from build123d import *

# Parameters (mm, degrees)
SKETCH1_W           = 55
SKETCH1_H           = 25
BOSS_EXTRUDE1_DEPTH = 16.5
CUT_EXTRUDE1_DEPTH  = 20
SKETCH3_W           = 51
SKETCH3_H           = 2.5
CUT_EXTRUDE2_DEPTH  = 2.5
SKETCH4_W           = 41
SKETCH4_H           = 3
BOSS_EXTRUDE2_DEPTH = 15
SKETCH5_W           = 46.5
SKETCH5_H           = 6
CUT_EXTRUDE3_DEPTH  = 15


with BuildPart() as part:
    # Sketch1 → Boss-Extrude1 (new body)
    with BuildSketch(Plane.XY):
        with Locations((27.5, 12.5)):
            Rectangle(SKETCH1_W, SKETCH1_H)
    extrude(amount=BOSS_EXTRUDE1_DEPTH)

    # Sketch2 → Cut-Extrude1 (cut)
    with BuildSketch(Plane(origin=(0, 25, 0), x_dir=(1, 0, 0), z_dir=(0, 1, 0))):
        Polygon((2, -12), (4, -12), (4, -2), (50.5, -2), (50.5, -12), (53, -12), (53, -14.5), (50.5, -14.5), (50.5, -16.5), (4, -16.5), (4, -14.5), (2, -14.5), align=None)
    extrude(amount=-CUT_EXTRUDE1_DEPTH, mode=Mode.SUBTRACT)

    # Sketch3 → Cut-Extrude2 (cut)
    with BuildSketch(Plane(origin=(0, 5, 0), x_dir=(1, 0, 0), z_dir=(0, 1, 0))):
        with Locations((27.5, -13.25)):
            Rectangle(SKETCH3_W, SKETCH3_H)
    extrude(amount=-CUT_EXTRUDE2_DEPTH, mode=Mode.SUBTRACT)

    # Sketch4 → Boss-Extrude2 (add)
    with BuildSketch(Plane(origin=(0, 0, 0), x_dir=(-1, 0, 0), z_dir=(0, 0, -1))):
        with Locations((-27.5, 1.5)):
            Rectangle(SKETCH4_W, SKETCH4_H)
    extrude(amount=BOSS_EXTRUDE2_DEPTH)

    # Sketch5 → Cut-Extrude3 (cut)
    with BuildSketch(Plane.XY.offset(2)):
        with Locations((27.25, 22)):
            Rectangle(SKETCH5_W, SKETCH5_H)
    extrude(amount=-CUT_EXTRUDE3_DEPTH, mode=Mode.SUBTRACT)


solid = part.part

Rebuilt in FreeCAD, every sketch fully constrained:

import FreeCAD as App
import Part
import Sketcher
from FreeCAD import Vector
Q = App.Units.Quantity

doc = App.newDocument("Part")
body = doc.addObject("PartDesign::Body", "Body")

# Sketch on XY plane
sketch1 = body.newObject("Sketcher::SketchObject", "Sketch")
sketch1.AttachmentSupport = (doc.getObject("XY_Plane"), [""])
sketch1.MapMode = "FlatFace"
sketch1.addGeometry([
    Part.LineSegment(Vector(0, 25, 0), Vector(0, 0, 0)),
    Part.LineSegment(Vector(0, 0, 0), Vector(55, 0, 0)),
    Part.LineSegment(Vector(55, 0, 0), Vector(55, 25, 0)),
    Part.LineSegment(Vector(55, 25, 0), Vector(0, 25, 0)),
], False)
sketch1.addConstraint([
    Sketcher.Constraint("Coincident", 0, 2, 1, 1),
    Sketcher.Constraint("Coincident", 1, 2, 2, 1),
    Sketcher.Constraint("Coincident", 2, 2, 3, 1),
    Sketcher.Constraint("Coincident", 3, 2, 0, 1),
    Sketcher.Constraint("Vertical", 0),
    Sketcher.Constraint("Horizontal", 1),
    Sketcher.Constraint("Vertical", 2),
    Sketcher.Constraint("Horizontal", 3),
    Sketcher.Constraint("Coincident", 0, 2, -1, 1),
    Sketcher.Constraint("DistanceX", 1, 1, 1, 2, Q("55 mm")),
    Sketcher.Constraint("DistanceY", 0, 2, 0, 1, Q("25 mm")),
])
pad1 = body.newObject("PartDesign::Pad", "Pad")
pad1.Profile = sketch1
pad1.Length = 16.5

# Sketch on XZ plane
sketch2 = body.newObject("Sketcher::SketchObject", "Sketch001")
sketch2.AttachmentSupport = (doc.getObject("XZ_Plane"), [""])
sketch2.MapMode = "FlatFace"
sketch2.AttachmentOffset = App.Placement(Vector(0, 0, -25), App.Rotation())
sketch2.addGeometry([
    Part.LineSegment(Vector(4, 12, 0), Vector(2, 12, 0)),  # 0
    Part.LineSegment(Vector(2, 12, 0), Vector(2, 14.5, 0)),  # 1
    Part.LineSegment(Vector(2, 14.5, 0), Vector(4, 14.5, 0)),  # 2
    Part.LineSegment(Vector(4, 14.5, 0), Vector(4, 16.5, 0)),  # 3
    Part.LineSegment(Vector(4, 16.5, 0), Vector(50.5, 16.5, 0)),  # 4
    Part.LineSegment(Vector(50.5, 16.5, 0), Vector(50.5, 14.5, 0)),  # 5
    Part.LineSegment(Vector(50.5, 14.5, 0), Vector(53, 14.5, 0)),  # 6
    Part.LineSegment(Vector(53, 14.5, 0), Vector(53, 12, 0)),  # 7
    Part.LineSegment(Vector(53, 12, 0), Vector(50.5, 12, 0)),  # 8
    Part.LineSegment(Vector(50.5, 12, 0), Vector(50.5, 2, 0)),  # 9
    Part.LineSegment(Vector(50.5, 2, 0), Vector(4, 2, 0)),  # 10
    Part.LineSegment(Vector(4, 2, 0), Vector(4, 12, 0)),  # 11
], False)
sketch2.addConstraint([
    Sketcher.Constraint("Coincident", 0, 2, 1, 1),
    Sketcher.Constraint("Coincident", 1, 2, 2, 1),
    Sketcher.Constraint("Coincident", 2, 2, 3, 1),
    Sketcher.Constraint("Coincident", 3, 2, 4, 1),
    Sketcher.Constraint("Coincident", 4, 2, 5, 1),
    Sketcher.Constraint("Coincident", 5, 2, 6, 1),
    Sketcher.Constraint("Coincident", 6, 2, 7, 1),
    Sketcher.Constraint("Coincident", 7, 2, 8, 1),
    Sketcher.Constraint("Coincident", 8, 2, 9, 1),
    Sketcher.Constraint("Coincident", 9, 2, 10, 1),
    Sketcher.Constraint("Coincident", 10, 2, 11, 1),
    Sketcher.Constraint("Coincident", 11, 2, 0, 1),
    Sketcher.Constraint("Horizontal", 0),
    Sketcher.Constraint("Vertical", 1),
    Sketcher.Constraint("Horizontal", 2),
    Sketcher.Constraint("Vertical", 3),
    Sketcher.Constraint("Horizontal", 4),
    Sketcher.Constraint("Vertical", 5),
    Sketcher.Constraint("Horizontal", 6),
    Sketcher.Constraint("Vertical", 7),
    Sketcher.Constraint("Horizontal", 8),
    Sketcher.Constraint("Vertical", 9),
    Sketcher.Constraint("Horizontal", 10),
    Sketcher.Constraint("Vertical", 11),
    Sketcher.Constraint("Horizontal", 2, 2, 5, 2),
    Sketcher.Constraint("Horizontal", 0, 2, 7, 2),
    Sketcher.Constraint("Vertical", 5, 2, 8, 2),
    Sketcher.Constraint("Vertical", 3, 2, 10, 2),
    Sketcher.Constraint("Equal", 8, 1),
    Sketcher.Constraint("Equal", 2, 3),
    Sketcher.Constraint("DistanceX", 0, 2, 0, 1, Q("2 mm")),
    Sketcher.Constraint("DistanceY", 9, 2, 9, 1, Q("10 mm")),
    Sketcher.Constraint("DistanceX", 4, 1, 4, 2, Q("46.5 mm")),
    Sketcher.Constraint("DistanceX", 6, 1, 6, 2, Q("2.5 mm")),
    Sketcher.Constraint("DistanceX", -1, 1, 0, 2, Q("2 mm")),
    Sketcher.Constraint("DistanceY", -1, 1, 0, 2, Q("12 mm")),
])
pocket1 = body.newObject("PartDesign::Pocket", "Pocket")
pocket1.Profile = sketch2
pocket1.Length = 20
pocket1.Reversed = True

# Sketch on XZ plane
sketch3 = body.newObject("Sketcher::SketchObject", "Sketch002")
sketch3.AttachmentSupport = (doc.getObject("XZ_Plane"), [""])
sketch3.MapMode = "FlatFace"
sketch3.AttachmentOffset = App.Placement(Vector(0, 0, -5), App.Rotation())
sketch3.addGeometry([
    Part.LineSegment(Vector(2, 12, 0), Vector(2, 14.5, 0)),
    Part.LineSegment(Vector(2, 14.5, 0), Vector(53, 14.5, 0)),
    Part.LineSegment(Vector(53, 14.5, 0), Vector(53, 12, 0)),
    Part.LineSegment(Vector(53, 12, 0), Vector(2, 12, 0)),
], False)
sketch3.addConstraint([
    Sketcher.Constraint("Coincident", 0, 2, 1, 1),
    Sketcher.Constraint("Coincident", 1, 2, 2, 1),
    Sketcher.Constraint("Coincident", 2, 2, 3, 1),
    Sketcher.Constraint("Coincident", 3, 2, 0, 1),
    Sketcher.Constraint("Vertical", 0),
    Sketcher.Constraint("Horizontal", 1),
    Sketcher.Constraint("Vertical", 2),
    Sketcher.Constraint("Horizontal", 3),
    Sketcher.Constraint("DistanceX", 1, 1, 1, 2, Q("51 mm")),
    Sketcher.Constraint("DistanceY", 0, 1, 0, 2, Q("2.5 mm")),
    Sketcher.Constraint("DistanceX", -1, 1, 0, 2, Q("2 mm")),
    Sketcher.Constraint("DistanceY", -1, 1, 2, 2, Q("12 mm")),
])
pocket2 = body.newObject("PartDesign::Pocket", "Pocket001")
pocket2.Profile = sketch3
pocket2.Length = 2.5
pocket2.Reversed = True

# Sketch on XY plane
sketch4 = body.newObject("Sketcher::SketchObject", "Sketch003")
sketch4.AttachmentSupport = (doc.getObject("XY_Plane"), [""])
sketch4.MapMode = "FlatFace"
sketch4.addGeometry([
    Part.LineSegment(Vector(48, 3, 0), Vector(48, 0, 0)),
    Part.LineSegment(Vector(48, 0, 0), Vector(7, 0, 0)),
    Part.LineSegment(Vector(7, 0, 0), Vector(7, 3, 0)),
    Part.LineSegment(Vector(7, 3, 0), Vector(48, 3, 0)),
], False)
sketch4.addConstraint([
    Sketcher.Constraint("Coincident", 0, 2, 1, 1),
    Sketcher.Constraint("Coincident", 1, 2, 2, 1),
    Sketcher.Constraint("Coincident", 2, 2, 3, 1),
    Sketcher.Constraint("Coincident", 3, 2, 0, 1),
    Sketcher.Constraint("Vertical", 0),
    Sketcher.Constraint("Horizontal", 1),
    Sketcher.Constraint("Vertical", 2),
    Sketcher.Constraint("Horizontal", 3),
    Sketcher.Constraint("PointOnObject", 0, 2, -1),
    Sketcher.Constraint("DistanceX", 1, 2, 1, 1, Q("41 mm")),
    Sketcher.Constraint("DistanceY", 0, 2, 0, 1, Q("3 mm")),
    Sketcher.Constraint("DistanceX", -1, 1, 0, 2, Q("48 mm")),
])
pad2 = body.newObject("PartDesign::Pad", "Pad001")
pad2.Profile = sketch4
pad2.Length = 15
pad2.Reversed = True

# Sketch on XY plane
sketch5 = body.newObject("Sketcher::SketchObject", "Sketch004")
sketch5.AttachmentSupport = (doc.getObject("XY_Plane"), [""])
sketch5.MapMode = "FlatFace"
sketch5.AttachmentOffset = App.Placement(Vector(0, 0, 2), App.Rotation())
sketch5.addGeometry([
    Part.LineSegment(Vector(4, 25, 0), Vector(4, 19, 0)),
    Part.LineSegment(Vector(4, 19, 0), Vector(50, 19, 0)),
    Part.LineSegment(Vector(50, 19, 0), Vector(50, 25, 0)),
    Part.LineSegment(Vector(50, 25, 0), Vector(4, 25, 0)),
], False)
sketch5.addConstraint([
    Sketcher.Constraint("Coincident", 0, 2, 1, 1),
    Sketcher.Constraint("Coincident", 1, 2, 2, 1),
    Sketcher.Constraint("Coincident", 2, 2, 3, 1),
    Sketcher.Constraint("Coincident", 3, 2, 0, 1),
    Sketcher.Constraint("Vertical", 0),
    Sketcher.Constraint("Horizontal", 1),
    Sketcher.Constraint("Vertical", 2),
    Sketcher.Constraint("Horizontal", 3),
    Sketcher.Constraint("DistanceY", 0, 2, 0, 1, Q("6 mm")),
    Sketcher.Constraint("DistanceX", 1, 1, 1, 2, Q("46.5 mm")),
    Sketcher.Constraint("DistanceX", -1, 1, 0, 2, Q("4 mm")),
    Sketcher.Constraint("DistanceY", -1, 1, 0, 2, Q("19 mm")),
])
pocket3 = body.newObject("PartDesign::Pocket", "Pocket002")
pocket3.Profile = sketch5
pocket3.Length = 15

doc.recompute()
